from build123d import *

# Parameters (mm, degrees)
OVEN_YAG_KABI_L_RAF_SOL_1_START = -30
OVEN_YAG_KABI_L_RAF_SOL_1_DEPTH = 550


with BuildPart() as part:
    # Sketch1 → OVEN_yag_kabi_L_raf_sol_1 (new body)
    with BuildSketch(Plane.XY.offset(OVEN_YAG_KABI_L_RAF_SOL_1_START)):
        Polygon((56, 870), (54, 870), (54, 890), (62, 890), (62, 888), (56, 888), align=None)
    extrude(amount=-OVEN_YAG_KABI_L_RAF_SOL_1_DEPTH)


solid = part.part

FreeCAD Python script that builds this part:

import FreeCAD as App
import Part
import Sketcher


def add_polygon(sketch, points):
    """Adds a closed chain of lines whose ends are joined by coincident constraints."""
    first, n = sketch.GeometryCount, len(points)
    for a, b in zip(points, points[1:] + points[:1]):
        sketch.addGeometry(Part.LineSegment(App.Vector(*a, 0), App.Vector(*b, 0)), False)
    for i in range(n):
        sketch.addConstraint(Sketcher.Constraint("Coincident", first + i, 2, first + (i + 1) % n, 1))

doc = App.newDocument("Part")
body = doc.addObject("PartDesign::Body", "Body")

sketch1 = body.newObject("Sketcher::SketchObject", "Sketch")
sketch1.AttachmentSupport = (doc.getObject("XY_Plane"), [""])
sketch1.MapMode = "FlatFace"
sketch1.AttachmentOffset = App.Placement(App.Vector(0, 0, -30), App.Rotation())
add_polygon(sketch1, [(54, 870), (56, 870), (56, 888), (62, 888), (62, 890), (54, 890)])
sketch1.addConstraint(Sketcher.Constraint("Horizontal", 0))
sketch1.addConstraint(Sketcher.Constraint("Vertical", 1))
sketch1.addConstraint(Sketcher.Constraint("Horizontal", 2))
sketch1.addConstraint(Sketcher.Constraint("Vertical", 3))
sketch1.addConstraint(Sketcher.Constraint("Horizontal", 4))
sketch1.addConstraint(Sketcher.Constraint("Vertical", 5))
sketch1.addConstraint(Sketcher.Constraint("Equal", 0, 3))
sketch1.addConstraint(Sketcher.Constraint("DistanceX", 0, 1, 0, 2, 2.0))
sketch1.addConstraint(Sketcher.Constraint("DistanceX", 2, 1, 2, 2, 6.0))
sketch1.addConstraint(Sketcher.Constraint("DistanceY", 1, 1, 1, 2, 18.0))
sketch1.addConstraint(Sketcher.Constraint("DistanceX", -1, 1, 0, 2, 56.0))
sketch1.addConstraint(Sketcher.Constraint("DistanceY", -1, 1, 0, 2, 870.0))
pad1 = body.newObject("PartDesign::Pad", "Pad")
pad1.Profile = sketch1
pad1.Length = 550
pad1.Reversed = True

doc.recompute()
